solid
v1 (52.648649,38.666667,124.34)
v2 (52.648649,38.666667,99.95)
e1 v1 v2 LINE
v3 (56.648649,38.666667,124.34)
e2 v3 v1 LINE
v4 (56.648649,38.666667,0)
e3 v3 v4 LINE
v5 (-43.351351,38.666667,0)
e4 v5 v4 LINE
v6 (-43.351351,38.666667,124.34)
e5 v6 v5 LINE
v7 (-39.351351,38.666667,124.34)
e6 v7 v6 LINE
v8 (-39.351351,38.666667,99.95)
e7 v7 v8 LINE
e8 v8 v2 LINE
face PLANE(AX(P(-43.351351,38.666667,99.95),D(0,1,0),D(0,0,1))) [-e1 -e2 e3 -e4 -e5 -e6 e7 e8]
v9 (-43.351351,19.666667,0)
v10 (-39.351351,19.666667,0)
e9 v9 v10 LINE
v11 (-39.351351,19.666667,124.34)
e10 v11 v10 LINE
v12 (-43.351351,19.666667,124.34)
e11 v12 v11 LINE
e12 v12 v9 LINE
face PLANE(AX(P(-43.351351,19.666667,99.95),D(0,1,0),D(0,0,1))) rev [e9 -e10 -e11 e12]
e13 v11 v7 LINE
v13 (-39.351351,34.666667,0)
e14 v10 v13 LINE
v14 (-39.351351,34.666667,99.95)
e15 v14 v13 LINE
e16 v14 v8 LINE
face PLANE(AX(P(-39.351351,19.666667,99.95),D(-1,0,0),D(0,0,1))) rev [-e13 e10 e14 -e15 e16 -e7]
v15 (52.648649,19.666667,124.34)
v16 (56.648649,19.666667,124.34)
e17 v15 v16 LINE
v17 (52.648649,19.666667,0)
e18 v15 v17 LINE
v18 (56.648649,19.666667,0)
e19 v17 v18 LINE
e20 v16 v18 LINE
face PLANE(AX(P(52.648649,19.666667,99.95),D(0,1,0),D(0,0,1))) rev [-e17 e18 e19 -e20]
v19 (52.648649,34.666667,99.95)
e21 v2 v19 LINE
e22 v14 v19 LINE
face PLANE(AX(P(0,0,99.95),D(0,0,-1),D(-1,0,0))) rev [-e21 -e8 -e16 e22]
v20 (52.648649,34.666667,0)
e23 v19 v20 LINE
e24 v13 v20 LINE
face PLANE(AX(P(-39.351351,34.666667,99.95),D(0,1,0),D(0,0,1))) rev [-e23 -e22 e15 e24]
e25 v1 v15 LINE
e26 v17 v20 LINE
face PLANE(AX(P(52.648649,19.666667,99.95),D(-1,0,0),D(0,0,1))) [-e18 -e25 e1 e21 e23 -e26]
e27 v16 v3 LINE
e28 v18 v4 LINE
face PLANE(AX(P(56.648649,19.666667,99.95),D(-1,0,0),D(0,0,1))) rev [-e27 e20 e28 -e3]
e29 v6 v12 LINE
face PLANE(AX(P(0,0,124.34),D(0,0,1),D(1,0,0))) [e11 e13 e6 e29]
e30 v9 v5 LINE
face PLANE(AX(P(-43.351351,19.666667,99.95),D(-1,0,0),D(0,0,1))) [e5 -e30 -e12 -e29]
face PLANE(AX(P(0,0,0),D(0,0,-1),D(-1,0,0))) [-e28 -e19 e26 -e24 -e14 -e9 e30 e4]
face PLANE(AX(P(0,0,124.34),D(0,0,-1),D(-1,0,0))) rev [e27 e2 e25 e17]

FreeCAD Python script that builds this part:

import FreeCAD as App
import Part
import Sketcher
from FreeCAD import Vector
Q = App.Units.Quantity

doc = App.newDocument("Part")
body = doc.addObject("PartDesign::Body", "Body")

sketch1 = body.newObject("Sketcher::SketchObject", "Sketch")
sketch1.AttachmentSupport = (doc.getObject("XY_Plane"), [""])
sketch1.MapMode = "FlatFace"
sketch1.addGeometry(Part.LineSegment(Vector(52.6, 19.7, 0), Vector(56.6, 19.7, 0)), False)
sketch1.addGeometry(Part.LineSegment(Vector(56.6, 19.7, 0), Vector(56.6, 38.7, 0)), False)
sketch1.addGeometry(Part.LineSegment(Vector(56.6, 38.7, 0), Vector(-43.4, 38.7, 0)), False)
sketch1.addGeometry(Part.LineSegment(Vector(-43.4, 38.7, 0), Vector(-43.4, 19.7, 0)), False)
sketch1.addGeometry(Part.LineSegment(Vector(-43.4, 19.7, 0), Vector(-39.4, 19.7, 0)), False)
sketch1.addGeometry(Part.LineSegment(Vector(-39.4, 19.7, 0), Vector(-39.4, 34.7, 0)), False)
sketch1.addGeometry(Part.LineSegment(Vector(-39.4, 34.7, 0), Vector(52.6, 34.7, 0)), False)
sketch1.addGeometry(Part.LineSegment(Vector(52.6, 34.7, 0), Vector(52.6, 19.7, 0)), False)
sketch1.addConstraint(Sketcher.Constraint("Coincident", 0, 2, 1, 1))
sketch1.addConstraint(Sketcher.Constraint("Coincident", 1, 2, 2, 1))
sketch1.addConstraint(Sketcher.Constraint("Coincident", 2, 2, 3, 1))
sketch1.addConstraint(Sketcher.Constraint("Coincident", 3, 2, 4, 1))
sketch1.addConstraint(Sketcher.Constraint("Coincident", 4, 2, 5, 1))
sketch1.addConstraint(Sketcher.Constraint("Coincident", 5, 2, 6, 1))
sketch1.addConstraint(Sketcher.Constraint("Coincident", 6, 2, 7, 1))
sketch1.addConstraint(Sketcher.Constraint("Coincident", 7, 2, 0, 1))
sketch1.addConstraint(Sketcher.Constraint("Horizontal", 0))
sketch1.addConstraint(Sketcher.Constraint("Vertical", 1))
sketch1.addConstraint(Sketcher.Constraint("Horizontal", 2))
sketch1.addConstraint(Sketcher.Constraint("Vertical", 3))
sketch1.addConstraint(Sketcher.Constraint("Horizontal", 4))
sketch1.addConstraint(Sketcher.Constraint("Vertical", 5))
sketch1.addConstraint(Sketcher.Constraint("Horizontal", 6))
sketch1.addConstraint(Sketcher.Constraint("Vertical", 7))
sketch1.addConstraint(Sketcher.Constraint("Horizontal", 0, 2, 3, 2))
sketch1.addConstraint(Sketcher.Constraint("Equal", 0, 4))
sketch1.addConstraint(Sketcher.Constraint("DistanceX", 0, 1, 0, 2, Q("4 mm")))
sketch1.addConstraint(Sketcher.Constraint("DistanceX", 2, 2, 2, 1, Q("100 mm")))
sketch1.addConstraint(Sketcher.Constraint("DistanceY", 1, 1, 1, 2, Q("19 mm")))
sketch1.addConstraint(Sketcher.Constraint("DistanceY", 5, 1, 5, 2, Q("15 mm")))
sketch1.addConstraint(Sketcher.Constraint("DistanceX", -1, 1, 0, 2, Q("56.648649 mm")))
sketch1.addConstraint(Sketcher.Constraint("DistanceY", -1, 1, 0, 2, Q("19.666667 mm")))
pad1 = body.newObject("PartDesign::Pad", "Pad")
pad1.Profile = sketch1
pad1.Length = 99.95

sketch2 = body.newObject("Sketcher::SketchObject", "Sketch001")
sketch2.AttachmentSupport = (doc.getObject("XY_Plane"), [""])
sketch2.MapMode = "FlatFace"
sketch2.AttachmentOffset = App.Placement(Vector(0, 0, 99.95), App.Rotation())
sketch2.addGeometry(Part.LineSegment(Vector(-43.4, 38.7, 0), Vector(-43.4, 19.7, 0)), False)
sketch2.addGeometry(Part.LineSegment(Vector(-43.4, 19.7, 0), Vector(-39.4, 19.7, 0)), False)
sketch2.addGeometry(Part.LineSegment(Vector(-39.4, 19.7, 0), Vector(-39.4, 38.7, 0)), False)
sketch2.addGeometry(Part.LineSegment(Vector(-39.4, 38.7, 0), Vector(-43.4, 38.7, 0)), False)
sketch2.addGeometry(Part.LineSegment(Vector(52.6, 38.7, 0), Vector(52.6, 19.7, 0)), False)
sketch2.addGeometry(Part.LineSegment(Vector(52.6, 19.7, 0), Vector(56.6, 19.7, 0)), False)
sketch2.addGeometry(Part.LineSegment(Vector(56.6, 19.7, 0), Vector(56.6, 38.7, 0)), False)
sketch2.addGeometry(Part.LineSegment(Vector(56.6, 38.7, 0), Vector(52.6, 38.7, 0)), False)
sketch2.addConstraint(Sketcher.Constraint("Coincident", 0, 2, 1, 1))
sketch2.addConstraint(Sketcher.Constraint("Coincident", 1, 2, 2, 1))
sketch2.addConstraint(Sketcher.Constraint("Coincident", 2, 2, 3, 1))
sketch2.addConstraint(Sketcher.Constraint("Coincident", 3, 2, 0, 1))
sketch2.addConstraint(Sketcher.Constraint("Coincident", 4, 2, 5, 1))
sketch2.addConstraint(Sketcher.Constraint("Coincident", 5, 2, 6, 1))
sketch2.addConstraint(Sketcher.Constraint("Coincident", 6, 2, 7, 1))
sketch2.addConstraint(Sketcher.Constraint("Coincident", 7, 2, 4, 1))
sketch2.addConstraint(Sketcher.Constraint("Vertical", 0))
sketch2.addConstraint(Sketcher.Constraint("Horizontal", 1))
sketch2.addConstraint(Sketcher.Constraint("Vertical", 2))
sketch2.addConstraint(Sketcher.Constraint("Horizontal", 3))
sketch2.addConstraint(Sketcher.Constraint("Vertical", 4))
sketch2.addConstraint(Sketcher.Constraint("Horizontal", 5))
sketch2.addConstraint(Sketcher.Constraint("Vertical", 6))
sketch2.addConstraint(Sketcher.Constraint("Horizontal", 7))
sketch2.addConstraint(Sketcher.Constraint("Horizontal", 1, 2, 4, 2))
sketch2.addConstraint(Sketcher.Constraint("Horizontal", 3, 2, 6, 2))
sketch2.addConstraint(Sketcher.Constraint("Equal", 3, 5))
sketch2.addConstraint(Sketcher.Constraint("DistanceX", 1, 1, 1, 2, Q("4 mm")))
sketch2.addConstraint(Sketcher.Constraint("DistanceY", 0, 2, 0, 1, Q("19 mm")))
sketch2.addConstraint(Sketcher.Constraint("DistanceX", 1, 2, 4, 2, Q("92 mm")))
sketch2.addConstraint(Sketcher.Constraint("DistanceX", 0, 2, -1, 1, Q("43.351351 mm")))
sketch2.addConstraint(Sketcher.Constraint("DistanceY", -1, 1, 0, 2, Q("19.666667 mm")))
pad2 = body.newObject("PartDesign::Pad", "Pad001")
pad2.Profile = sketch2
pad2.Length = 24.39

doc.recompute()
